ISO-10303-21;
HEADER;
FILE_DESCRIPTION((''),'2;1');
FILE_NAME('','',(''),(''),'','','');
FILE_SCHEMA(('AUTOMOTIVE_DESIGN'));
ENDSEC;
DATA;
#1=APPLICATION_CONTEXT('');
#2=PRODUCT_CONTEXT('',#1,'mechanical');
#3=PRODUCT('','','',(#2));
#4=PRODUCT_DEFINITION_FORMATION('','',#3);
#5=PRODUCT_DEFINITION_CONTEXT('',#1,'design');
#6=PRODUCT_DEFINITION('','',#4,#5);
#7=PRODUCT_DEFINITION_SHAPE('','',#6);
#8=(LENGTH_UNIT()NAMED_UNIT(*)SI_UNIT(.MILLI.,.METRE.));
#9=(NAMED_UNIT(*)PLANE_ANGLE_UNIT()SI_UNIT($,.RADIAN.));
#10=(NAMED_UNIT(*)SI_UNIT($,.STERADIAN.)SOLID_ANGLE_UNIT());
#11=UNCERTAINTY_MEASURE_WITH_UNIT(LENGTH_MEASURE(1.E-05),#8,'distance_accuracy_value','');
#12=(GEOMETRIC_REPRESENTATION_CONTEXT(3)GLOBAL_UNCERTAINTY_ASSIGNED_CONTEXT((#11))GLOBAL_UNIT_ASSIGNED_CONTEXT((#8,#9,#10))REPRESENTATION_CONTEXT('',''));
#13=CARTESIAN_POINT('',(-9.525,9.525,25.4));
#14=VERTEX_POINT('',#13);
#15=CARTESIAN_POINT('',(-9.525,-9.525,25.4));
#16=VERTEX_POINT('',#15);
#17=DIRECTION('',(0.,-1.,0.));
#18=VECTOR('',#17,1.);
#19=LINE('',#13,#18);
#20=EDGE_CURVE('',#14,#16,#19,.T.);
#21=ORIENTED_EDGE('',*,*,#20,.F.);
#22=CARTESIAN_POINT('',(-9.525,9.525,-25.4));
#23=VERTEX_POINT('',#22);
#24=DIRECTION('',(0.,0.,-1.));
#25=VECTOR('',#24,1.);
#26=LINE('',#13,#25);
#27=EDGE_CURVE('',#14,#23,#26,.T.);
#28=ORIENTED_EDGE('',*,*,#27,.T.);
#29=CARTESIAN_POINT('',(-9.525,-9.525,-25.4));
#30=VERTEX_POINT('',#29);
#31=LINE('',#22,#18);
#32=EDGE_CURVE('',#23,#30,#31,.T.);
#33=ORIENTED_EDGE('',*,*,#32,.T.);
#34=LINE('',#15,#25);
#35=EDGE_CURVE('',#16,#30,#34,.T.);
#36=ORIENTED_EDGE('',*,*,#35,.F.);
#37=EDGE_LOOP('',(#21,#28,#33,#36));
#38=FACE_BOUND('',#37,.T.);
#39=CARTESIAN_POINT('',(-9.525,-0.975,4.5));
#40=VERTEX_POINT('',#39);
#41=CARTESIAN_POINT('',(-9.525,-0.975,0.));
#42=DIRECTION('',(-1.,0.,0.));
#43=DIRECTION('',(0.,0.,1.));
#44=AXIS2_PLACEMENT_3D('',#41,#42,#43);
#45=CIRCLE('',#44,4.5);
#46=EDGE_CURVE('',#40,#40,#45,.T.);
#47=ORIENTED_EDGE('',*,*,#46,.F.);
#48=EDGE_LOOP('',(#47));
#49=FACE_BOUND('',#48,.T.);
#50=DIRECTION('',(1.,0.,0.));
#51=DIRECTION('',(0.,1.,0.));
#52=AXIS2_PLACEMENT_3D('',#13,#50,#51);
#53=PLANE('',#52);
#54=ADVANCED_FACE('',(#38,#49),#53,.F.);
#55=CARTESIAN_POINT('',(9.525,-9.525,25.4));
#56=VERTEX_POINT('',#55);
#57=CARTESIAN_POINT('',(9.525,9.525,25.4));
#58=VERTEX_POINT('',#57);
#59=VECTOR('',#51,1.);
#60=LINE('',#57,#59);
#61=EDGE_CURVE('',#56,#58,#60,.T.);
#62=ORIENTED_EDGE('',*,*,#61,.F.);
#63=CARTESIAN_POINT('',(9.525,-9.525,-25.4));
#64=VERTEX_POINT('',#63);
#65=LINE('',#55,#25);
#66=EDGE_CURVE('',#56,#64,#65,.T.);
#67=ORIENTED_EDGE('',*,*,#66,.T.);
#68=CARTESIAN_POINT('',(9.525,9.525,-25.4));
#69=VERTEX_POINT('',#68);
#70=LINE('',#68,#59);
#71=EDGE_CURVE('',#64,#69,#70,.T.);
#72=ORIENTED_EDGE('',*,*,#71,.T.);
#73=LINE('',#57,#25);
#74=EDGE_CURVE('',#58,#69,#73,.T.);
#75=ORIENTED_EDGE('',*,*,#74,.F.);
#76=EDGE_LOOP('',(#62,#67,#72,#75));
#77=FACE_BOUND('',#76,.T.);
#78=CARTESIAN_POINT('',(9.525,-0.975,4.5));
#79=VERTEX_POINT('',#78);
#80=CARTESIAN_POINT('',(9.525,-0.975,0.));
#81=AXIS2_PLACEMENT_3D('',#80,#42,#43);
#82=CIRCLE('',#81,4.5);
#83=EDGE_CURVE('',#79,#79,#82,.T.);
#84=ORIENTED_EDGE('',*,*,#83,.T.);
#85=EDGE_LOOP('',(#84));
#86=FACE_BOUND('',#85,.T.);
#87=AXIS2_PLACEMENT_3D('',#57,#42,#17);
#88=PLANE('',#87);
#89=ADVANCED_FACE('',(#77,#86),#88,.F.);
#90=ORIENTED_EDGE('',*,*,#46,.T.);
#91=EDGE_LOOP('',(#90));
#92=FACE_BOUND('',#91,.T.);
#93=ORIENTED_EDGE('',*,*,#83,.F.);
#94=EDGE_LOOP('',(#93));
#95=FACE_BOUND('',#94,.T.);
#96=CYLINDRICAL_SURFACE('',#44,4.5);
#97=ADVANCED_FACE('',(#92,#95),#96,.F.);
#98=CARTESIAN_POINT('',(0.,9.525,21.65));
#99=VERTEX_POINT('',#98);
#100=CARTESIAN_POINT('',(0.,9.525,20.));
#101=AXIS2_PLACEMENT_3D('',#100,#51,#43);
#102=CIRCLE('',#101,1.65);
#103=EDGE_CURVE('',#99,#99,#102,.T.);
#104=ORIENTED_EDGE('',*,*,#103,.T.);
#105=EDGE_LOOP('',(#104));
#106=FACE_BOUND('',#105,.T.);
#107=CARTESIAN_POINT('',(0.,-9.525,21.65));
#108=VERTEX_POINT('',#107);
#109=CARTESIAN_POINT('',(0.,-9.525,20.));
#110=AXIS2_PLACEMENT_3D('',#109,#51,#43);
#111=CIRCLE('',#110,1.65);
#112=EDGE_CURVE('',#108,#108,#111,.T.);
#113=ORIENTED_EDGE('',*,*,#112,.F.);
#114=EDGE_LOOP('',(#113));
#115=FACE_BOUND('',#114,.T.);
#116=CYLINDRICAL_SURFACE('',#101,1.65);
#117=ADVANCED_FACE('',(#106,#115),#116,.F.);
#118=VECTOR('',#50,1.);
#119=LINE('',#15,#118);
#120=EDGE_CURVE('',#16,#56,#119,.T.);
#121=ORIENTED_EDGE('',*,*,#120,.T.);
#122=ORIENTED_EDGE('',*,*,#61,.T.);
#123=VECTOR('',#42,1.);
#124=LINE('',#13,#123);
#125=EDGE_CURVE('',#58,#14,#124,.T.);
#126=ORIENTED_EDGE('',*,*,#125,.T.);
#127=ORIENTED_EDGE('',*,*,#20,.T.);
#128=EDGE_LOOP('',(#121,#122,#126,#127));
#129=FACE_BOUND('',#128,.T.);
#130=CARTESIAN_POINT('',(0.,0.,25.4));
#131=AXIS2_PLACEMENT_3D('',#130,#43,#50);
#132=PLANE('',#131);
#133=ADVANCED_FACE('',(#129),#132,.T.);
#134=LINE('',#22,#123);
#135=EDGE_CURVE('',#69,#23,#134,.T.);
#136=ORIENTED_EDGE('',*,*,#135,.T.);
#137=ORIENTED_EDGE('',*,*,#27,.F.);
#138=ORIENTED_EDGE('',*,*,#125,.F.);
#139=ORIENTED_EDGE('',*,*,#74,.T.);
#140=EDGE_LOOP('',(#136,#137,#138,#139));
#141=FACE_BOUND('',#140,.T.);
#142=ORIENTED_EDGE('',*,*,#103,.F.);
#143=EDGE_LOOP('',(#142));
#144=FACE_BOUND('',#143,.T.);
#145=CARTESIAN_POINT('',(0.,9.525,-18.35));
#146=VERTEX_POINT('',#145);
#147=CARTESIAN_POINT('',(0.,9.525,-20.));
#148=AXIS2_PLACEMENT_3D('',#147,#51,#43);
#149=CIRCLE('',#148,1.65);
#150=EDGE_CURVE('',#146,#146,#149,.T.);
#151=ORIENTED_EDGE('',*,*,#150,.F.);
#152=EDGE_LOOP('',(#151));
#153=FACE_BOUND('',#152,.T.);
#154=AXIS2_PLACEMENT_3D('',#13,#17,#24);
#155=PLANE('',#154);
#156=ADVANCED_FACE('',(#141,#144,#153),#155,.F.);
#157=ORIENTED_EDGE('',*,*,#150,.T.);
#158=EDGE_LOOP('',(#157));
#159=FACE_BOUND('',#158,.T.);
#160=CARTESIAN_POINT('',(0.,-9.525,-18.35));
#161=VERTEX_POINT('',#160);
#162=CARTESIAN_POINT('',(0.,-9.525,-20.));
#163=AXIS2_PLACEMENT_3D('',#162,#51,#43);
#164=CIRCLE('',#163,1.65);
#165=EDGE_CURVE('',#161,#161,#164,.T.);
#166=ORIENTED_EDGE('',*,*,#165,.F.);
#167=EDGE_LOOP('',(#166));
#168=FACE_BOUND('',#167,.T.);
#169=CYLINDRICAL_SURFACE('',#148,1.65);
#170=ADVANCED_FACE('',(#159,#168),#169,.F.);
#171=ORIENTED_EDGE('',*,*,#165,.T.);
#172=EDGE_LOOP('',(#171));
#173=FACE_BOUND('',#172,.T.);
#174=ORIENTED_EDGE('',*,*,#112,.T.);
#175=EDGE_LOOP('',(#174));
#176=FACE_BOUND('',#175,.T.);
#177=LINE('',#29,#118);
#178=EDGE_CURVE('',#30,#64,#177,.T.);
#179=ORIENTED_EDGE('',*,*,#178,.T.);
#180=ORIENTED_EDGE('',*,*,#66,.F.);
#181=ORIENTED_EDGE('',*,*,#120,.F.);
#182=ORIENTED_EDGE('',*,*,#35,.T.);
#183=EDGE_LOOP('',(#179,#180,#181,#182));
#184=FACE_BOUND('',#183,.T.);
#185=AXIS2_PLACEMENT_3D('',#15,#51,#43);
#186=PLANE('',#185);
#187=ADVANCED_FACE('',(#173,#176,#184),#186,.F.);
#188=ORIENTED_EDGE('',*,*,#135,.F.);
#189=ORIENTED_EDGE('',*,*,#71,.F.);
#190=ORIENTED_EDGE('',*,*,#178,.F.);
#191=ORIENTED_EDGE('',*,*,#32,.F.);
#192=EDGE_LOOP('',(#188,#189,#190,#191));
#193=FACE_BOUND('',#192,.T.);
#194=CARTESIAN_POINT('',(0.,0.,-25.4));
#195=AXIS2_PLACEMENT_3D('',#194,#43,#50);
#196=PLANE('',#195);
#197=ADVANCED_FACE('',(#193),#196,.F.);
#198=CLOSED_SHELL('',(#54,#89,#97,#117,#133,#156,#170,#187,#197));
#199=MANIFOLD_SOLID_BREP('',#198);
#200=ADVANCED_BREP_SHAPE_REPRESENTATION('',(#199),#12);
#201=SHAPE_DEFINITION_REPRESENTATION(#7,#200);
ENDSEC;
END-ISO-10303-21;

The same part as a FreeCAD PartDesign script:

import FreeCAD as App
import Part
import Sketcher
from FreeCAD import Vector
Q = App.Units.Quantity


def add_polygon(sketch, points):
    """Adds a closed chain of lines whose ends are joined by coincident constraints."""
    first, n = sketch.GeometryCount, len(points)
    for a, b in zip(points, points[1:] + points[:1]):
        sketch.addGeometry(Part.LineSegment(App.Vector(*a, 0), App.Vector(*b, 0)), False)
    for i in range(n):
        sketch.addConstraint(Sketcher.Constraint("Coincident", first + i, 2, first + (i + 1) % n, 1))

doc = App.newDocument("Part")
body = doc.addObject("PartDesign::Body", "Body")

sketch1 = body.newObject("Sketcher::SketchObject", "Sketch")
sketch1.AttachmentSupport = (doc.getObject("XY_Plane"), [""])
sketch1.MapMode = "FlatFace"
add_polygon(sketch1, [(-10, 10), (-10, -10), (10, -10), (10, 10)])
sketch1.addConstraint([
    Sketcher.Constraint("Vertical", 0),
    Sketcher.Constraint("Horizontal", 1),
    Sketcher.Constraint("Vertical", 2),
    Sketcher.Constraint("Horizontal", 3),
    Sketcher.Constraint("Symmetric", 0, 2, 2, 2, -1, 1),
    Sketcher.Constraint("Equal", 3, 0),
    Sketcher.Constraint("DistanceX", 1, 1, 1, 2, Q("19.05 mm")),
])
pad1 = body.newObject("PartDesign::Pad", "Pad")
pad1.Profile = sketch1
pad1.Length = 50.8
pad1.Midplane = True

sketch2 = body.newObject("Sketcher::SketchObject", "Sketch001")
sketch2.AttachmentSupport = (doc.getObject("XZ_Plane"), [""])
sketch2.MapMode = "FlatFace"
sketch2.AttachmentOffset = App.Placement(Vector(0, 0, -9.525), App.Rotation())
sketch2.addGeometry([
    Part.Circle(Vector(0, -20, 0), Vector(0, 0, 1), 1.6),
    Part.Circle(Vector(0, 20, 0), Vector(0, 0, 1), 1.6),
], False)
sketch2.addConstraint([
    Sketcher.Constraint("Equal", 0, 1),
    Sketcher.Constraint("Symmetric", 0, 3, 1, 3, -1, 1),
    Sketcher.Constraint("PointOnObject", 0, 3, -2),
    Sketcher.Constraint("Diameter", 0, Q("3.3 mm")),
    Sketcher.Constraint("DistanceY", 0, 3, -1, 1, Q("20 mm")),
])
doc.recompute()
hole = body.newObject("PartDesign::Hole", "Hole")
hole.Profile = sketch2
hole.ThreadType = "None"
hole.Diameter = 3.3
hole.DepthType = "ThroughAll"
hole.Reversed = True

sketch3 = body.newObject("Sketcher::SketchObject", "Sketch002")
sketch3.AttachmentSupport = (doc.getObject("YZ_Plane"), [""])
sketch3.MapMode = "FlatFace"
sketch3.AttachmentOffset = App.Placement(Vector(0, 0, -9.525), App.Rotation())
sketch3.addGeometry(Part.Circle(Vector(-1, 0, 0), Vector(0, 0, 1), 4.5), False)
sketch3.addConstraint([
    Sketcher.Constraint("PointOnObject", 0, 3, -1),
    Sketcher.Constraint("Diameter", 0, Q("9 mm")),
    Sketcher.Constraint("DistanceX", 0, 3, -1, 1, Q("0.975 mm")),
])
doc.recompute()
hole2 = body.newObject("PartDesign::Hole", "Hole001")
hole2.Profile = sketch3
hole2.ThreadType = "None"
hole2.Diameter = 9
hole2.DepthType = "ThroughAll"
hole2.Reversed = True

doc.recompute()
